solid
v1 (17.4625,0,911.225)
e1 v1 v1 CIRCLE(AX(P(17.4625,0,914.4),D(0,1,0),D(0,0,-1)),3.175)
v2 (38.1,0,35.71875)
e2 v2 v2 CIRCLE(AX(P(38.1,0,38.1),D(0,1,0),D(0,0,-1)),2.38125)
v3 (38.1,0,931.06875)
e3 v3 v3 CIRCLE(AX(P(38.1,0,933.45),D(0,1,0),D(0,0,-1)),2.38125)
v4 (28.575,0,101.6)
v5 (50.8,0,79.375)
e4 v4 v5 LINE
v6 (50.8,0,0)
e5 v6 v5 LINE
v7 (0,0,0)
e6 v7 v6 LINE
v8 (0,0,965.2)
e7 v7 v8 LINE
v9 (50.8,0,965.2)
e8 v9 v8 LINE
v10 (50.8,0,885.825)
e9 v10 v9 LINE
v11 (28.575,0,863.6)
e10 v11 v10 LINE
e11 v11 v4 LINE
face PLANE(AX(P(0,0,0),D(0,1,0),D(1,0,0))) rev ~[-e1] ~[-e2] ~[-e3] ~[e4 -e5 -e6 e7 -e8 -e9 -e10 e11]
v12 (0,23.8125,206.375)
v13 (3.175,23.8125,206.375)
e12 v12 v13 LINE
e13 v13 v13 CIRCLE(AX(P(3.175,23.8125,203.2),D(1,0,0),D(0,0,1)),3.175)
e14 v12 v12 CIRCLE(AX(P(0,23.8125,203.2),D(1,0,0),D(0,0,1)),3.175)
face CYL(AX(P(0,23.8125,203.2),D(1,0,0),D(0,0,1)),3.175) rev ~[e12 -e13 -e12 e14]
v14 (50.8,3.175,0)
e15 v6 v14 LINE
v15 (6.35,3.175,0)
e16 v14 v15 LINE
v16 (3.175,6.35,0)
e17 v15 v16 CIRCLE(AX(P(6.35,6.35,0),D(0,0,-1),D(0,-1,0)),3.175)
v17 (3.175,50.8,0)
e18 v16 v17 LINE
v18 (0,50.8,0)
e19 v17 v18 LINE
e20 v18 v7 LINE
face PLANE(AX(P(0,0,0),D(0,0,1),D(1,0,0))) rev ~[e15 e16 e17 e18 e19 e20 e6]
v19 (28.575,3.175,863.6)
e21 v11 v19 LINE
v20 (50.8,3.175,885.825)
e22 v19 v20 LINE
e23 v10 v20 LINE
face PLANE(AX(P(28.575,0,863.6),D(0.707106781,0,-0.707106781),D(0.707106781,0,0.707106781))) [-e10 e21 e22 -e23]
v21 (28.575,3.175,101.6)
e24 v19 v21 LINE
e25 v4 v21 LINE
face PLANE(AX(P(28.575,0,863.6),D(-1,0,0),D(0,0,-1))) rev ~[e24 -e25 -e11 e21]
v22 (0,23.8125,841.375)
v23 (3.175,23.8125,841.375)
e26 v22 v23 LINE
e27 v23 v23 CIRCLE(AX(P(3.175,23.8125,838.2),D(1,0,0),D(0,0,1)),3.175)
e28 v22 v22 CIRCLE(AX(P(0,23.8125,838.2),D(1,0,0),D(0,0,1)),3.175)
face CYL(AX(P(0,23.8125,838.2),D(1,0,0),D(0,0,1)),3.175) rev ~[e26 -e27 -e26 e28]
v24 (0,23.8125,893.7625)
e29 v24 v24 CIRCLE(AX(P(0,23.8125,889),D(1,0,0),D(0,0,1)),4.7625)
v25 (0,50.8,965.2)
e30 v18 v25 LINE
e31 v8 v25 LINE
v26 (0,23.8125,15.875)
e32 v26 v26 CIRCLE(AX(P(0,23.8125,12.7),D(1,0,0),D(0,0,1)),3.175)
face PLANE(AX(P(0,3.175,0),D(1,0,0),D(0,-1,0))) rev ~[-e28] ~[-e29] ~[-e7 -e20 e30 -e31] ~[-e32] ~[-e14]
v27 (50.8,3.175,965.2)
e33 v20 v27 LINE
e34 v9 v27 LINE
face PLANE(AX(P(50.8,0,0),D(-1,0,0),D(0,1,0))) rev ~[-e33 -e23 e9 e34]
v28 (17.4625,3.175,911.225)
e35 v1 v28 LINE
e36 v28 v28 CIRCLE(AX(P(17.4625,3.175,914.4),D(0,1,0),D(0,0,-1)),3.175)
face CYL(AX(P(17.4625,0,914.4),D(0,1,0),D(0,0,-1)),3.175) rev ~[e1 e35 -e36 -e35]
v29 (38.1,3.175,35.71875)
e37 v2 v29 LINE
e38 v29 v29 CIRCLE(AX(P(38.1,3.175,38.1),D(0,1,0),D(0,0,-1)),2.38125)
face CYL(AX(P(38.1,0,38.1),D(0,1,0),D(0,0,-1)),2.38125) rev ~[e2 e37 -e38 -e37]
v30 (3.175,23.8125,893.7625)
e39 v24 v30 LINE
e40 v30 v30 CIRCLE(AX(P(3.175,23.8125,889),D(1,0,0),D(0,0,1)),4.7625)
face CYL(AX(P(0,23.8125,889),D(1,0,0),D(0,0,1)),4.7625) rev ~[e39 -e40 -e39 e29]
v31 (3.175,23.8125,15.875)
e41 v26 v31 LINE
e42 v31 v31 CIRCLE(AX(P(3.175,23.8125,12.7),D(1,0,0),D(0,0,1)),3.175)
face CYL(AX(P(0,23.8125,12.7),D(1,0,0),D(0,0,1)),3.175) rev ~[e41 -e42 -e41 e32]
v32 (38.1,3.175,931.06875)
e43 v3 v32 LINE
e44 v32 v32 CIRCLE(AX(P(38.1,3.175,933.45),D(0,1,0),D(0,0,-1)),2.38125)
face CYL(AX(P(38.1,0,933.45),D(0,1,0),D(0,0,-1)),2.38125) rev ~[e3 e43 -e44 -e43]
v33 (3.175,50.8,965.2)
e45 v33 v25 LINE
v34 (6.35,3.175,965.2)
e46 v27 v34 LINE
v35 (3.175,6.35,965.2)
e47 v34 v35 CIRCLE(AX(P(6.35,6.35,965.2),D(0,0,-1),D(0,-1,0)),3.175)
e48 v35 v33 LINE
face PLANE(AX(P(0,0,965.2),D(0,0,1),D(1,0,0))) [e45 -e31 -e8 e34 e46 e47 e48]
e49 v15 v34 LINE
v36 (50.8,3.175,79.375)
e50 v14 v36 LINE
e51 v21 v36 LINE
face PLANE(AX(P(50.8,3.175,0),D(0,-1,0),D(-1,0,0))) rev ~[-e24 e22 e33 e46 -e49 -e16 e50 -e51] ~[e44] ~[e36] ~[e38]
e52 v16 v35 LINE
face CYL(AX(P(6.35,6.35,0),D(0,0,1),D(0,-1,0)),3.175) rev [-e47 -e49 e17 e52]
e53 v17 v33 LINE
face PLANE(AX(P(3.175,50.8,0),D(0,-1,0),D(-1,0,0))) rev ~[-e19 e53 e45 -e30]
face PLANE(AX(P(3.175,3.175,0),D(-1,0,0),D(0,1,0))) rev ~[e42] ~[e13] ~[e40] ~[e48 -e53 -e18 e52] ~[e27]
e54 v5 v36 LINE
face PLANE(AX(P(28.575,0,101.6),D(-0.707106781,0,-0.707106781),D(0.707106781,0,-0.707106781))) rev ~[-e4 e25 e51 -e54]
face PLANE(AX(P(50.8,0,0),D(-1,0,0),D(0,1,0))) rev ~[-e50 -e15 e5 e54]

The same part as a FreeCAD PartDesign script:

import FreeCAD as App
import Part
import Sketcher
from FreeCAD import Vector
Q = App.Units.Quantity


def edges_at(feature, points):
    """Names of the edges that pass closest to the given points."""
    edges = feature.Shape.Edges
    near = lambda p: min(range(len(edges)), key=lambda i: edges[i].distToShape(Part.Vertex(*p))[0])
    return sorted({f"Edge{near(p) + 1}" for p in points})

doc = App.newDocument("Part")
body = doc.addObject("PartDesign::Body", "Body")

# Sketch on XY plane
sketch1 = body.newObject("Sketcher::SketchObject", "Sketch")
sketch1.AttachmentSupport = (doc.getObject("XY_Plane"), [""])
sketch1.MapMode = "FlatFace"
sketch1.addGeometry([
    Part.LineSegment(Vector(0, 0, 0), Vector(50.8, 0, 0)),  # 0
    Part.LineSegment(Vector(50.8, 0, 0), Vector(50.8, 3.2, 0)),  # 1
    Part.LineSegment(Vector(50.8, 3.2, 0), Vector(3.2, 3.2, 0)),  # 2
    Part.LineSegment(Vector(3.2, 3.2, 0), Vector(3.2, 50.8, 0)),  # 3
    Part.LineSegment(Vector(3.2, 50.8, 0), Vector(0, 50.8, 0)),  # 4
    Part.LineSegment(Vector(0, 50.8, 0), Vector(0, 0, 0)),  # 5
], False)
sketch1.addConstraint([
    Sketcher.Constraint("Coincident", 0, 2, 1, 1),
    Sketcher.Constraint("Coincident", 1, 2, 2, 1),
    Sketcher.Constraint("Coincident", 2, 2, 3, 1),
    Sketcher.Constraint("Coincident", 3, 2, 4, 1),
    Sketcher.Constraint("Coincident", 4, 2, 5, 1),
    Sketcher.Constraint("Coincident", 5, 2, 0, 1),
    Sketcher.Constraint("Horizontal", 0),
    Sketcher.Constraint("Vertical", 1),
    Sketcher.Constraint("Horizontal", 2),
    Sketcher.Constraint("Vertical", 3),
    Sketcher.Constraint("Horizontal", 4),
    Sketcher.Constraint("Vertical", 5),
    Sketcher.Constraint("Coincident", 5, 2, -1, 1),
    Sketcher.Constraint("Equal", 4, 1),
    Sketcher.Constraint("Equal", 2, 3),
    Sketcher.Constraint("DistanceX", 0, 1, 0, 2, Q("2 in")),
    Sketcher.Constraint("DistanceX", 4, 2, 4, 1, Q("0.125 in")),
])
pad1 = body.newObject("PartDesign::Pad", "Pad")
pad1.Profile = sketch1
pad1.Length = Q("38 in")

# Sketch on YZ plane
sketch2 = body.newObject("Sketcher::SketchObject", "Sketch001")
sketch2.AttachmentSupport = (doc.getObject("YZ_Plane"), [""])
sketch2.MapMode = "FlatFace"
sketch2.addGeometry([
    Part.Circle(Vector(23.8, 12.7, 0), Vector(0, 0, 1), 3.2),
    Part.Circle(Vector(23.8, 203.2, 0), Vector(0, 0, 1), 3.2),
], False)
sketch2.addConstraint([
    Sketcher.Constraint("Equal", 0, 1),
    Sketcher.Constraint("Vertical", 0, 3, 1, 3),
    Sketcher.Constraint("Diameter", 0, Q("0.25 in")),
    Sketcher.Constraint("DistanceY", -1, 1, 1, 3, Q("8 in")),
    Sketcher.Constraint("DistanceY", -1, 1, 0, 3, Q("0.5 in")),
    Sketcher.Constraint("DistanceX", -1, 1, 0, 3, Q("0.9375 in")),
])
doc.recompute()
hole = body.newObject("PartDesign::Hole", "Hole")
hole.Profile = sketch2
hole.ThreadType = "None"
hole.Diameter = Q("0.25 in")
hole.DepthType = "ThroughAll"
hole.Reversed = True

# Sketch on YZ plane
sketch3 = body.newObject("Sketcher::SketchObject", "Sketch002")
sketch3.AttachmentSupport = (doc.getObject("YZ_Plane"), [""])
sketch3.MapMode = "FlatFace"
sketch3.addGeometry(Part.Circle(Vector(23.8, 889, 0), Vector(0, 0, 1), 4.8), False)
sketch3.addConstraint([
    Sketcher.Constraint("Diameter", 0, Q("0.375 in")),
    Sketcher.Constraint("DistanceY", -1, 1, 0, 3, Q("35 in")),
    Sketcher.Constraint("DistanceX", -1, 1, 0, 3, Q("0.9375 in")),
])
doc.recompute()
hole2 = body.newObject("PartDesign::Hole", "Hole001")
hole2.Profile = sketch3
hole2.ThreadType = "None"
hole2.Diameter = Q("0.375 in")
hole2.DepthType = "ThroughAll"
hole2.Reversed = True

# Sketch on XZ plane
sketch4 = body.newObject("Sketcher::SketchObject", "Sketch003")
sketch4.AttachmentSupport = (doc.getObject("XZ_Plane"), [""])
sketch4.MapMode = "FlatFace"
sketch4.addGeometry(Part.Circle(Vector(17.5, 914.4, 0), Vector(0, 0, 1), 3.2), False)
sketch4.addConstraint([
    Sketcher.Constraint("Diameter", 0, Q("0.25 in")),
    Sketcher.Constraint("DistanceY", -1, 1, 0, 3, Q("36 in")),
    Sketcher.Constraint("DistanceX", -1, 1, 0, 3, Q("0.6875 in")),
])
doc.recompute()
hole3 = body.newObject("PartDesign::Hole", "Hole002")
hole3.Profile = sketch4
hole3.ThreadType = "None"
hole3.Diameter = Q("0.25 in")
hole3.DepthType = "ThroughAll"
doc.recompute()

fillet = body.newObject("PartDesign::Fillet", "Fillet")
fillet.Base = (hole3, edges_at(hole3, [(3.175, 3.175, 482.6)]))
fillet.Radius = Q("0.125 in")

# Sketch on XZ plane
sketch5 = body.newObject("Sketcher::SketchObject", "Sketch004")
sketch5.AttachmentSupport = (doc.getObject("XZ_Plane"), [""])
sketch5.MapMode = "FlatFace"
sketch5.addGeometry([
    Part.Circle(Vector(38.1, 933.5, 0), Vector(0, 0, 1), 2.4),
    Part.Circle(Vector(38.1, 38.1, 0), Vector(0, 0, 1), 2.4),
], False)
sketch5.addConstraint([
    Sketcher.Constraint("Equal", 0, 1),
    Sketcher.Constraint("Vertical", 0, 3, 1, 3),
    Sketcher.Constraint("Diameter", 0, Q("0.1875 in")),
    Sketcher.Constraint("DistanceX", -1, 1, 0, 3, Q("1.5 in")),
    Sketcher.Constraint("DistanceY", -1, 1, 1, 3, Q("1.5 in")),
    Sketcher.Constraint("DistanceY", -1, 1, 0, 3, Q("36.75 in")),
])
doc.recompute()
hole4 = body.newObject("PartDesign::Hole", "Hole003")
hole4.Profile = sketch5
hole4.ThreadType = "None"
hole4.Diameter = Q("0.1875 in")
hole4.DepthType = "ThroughAll"

# Sketch on XZ plane
sketch6 = body.newObject("Sketcher::SketchObject", "Sketch005")
sketch6.AttachmentSupport = (doc.getObject("XZ_Plane"), [""])
sketch6.MapMode = "FlatFace"
sketch6.addGeometry([
    Part.LineSegment(Vector(29, 102, 0), Vector(51, 79, 0)),
    Part.LineSegment(Vector(51, 79, 0), Vector(51, 886, 0)),
    Part.LineSegment(Vector(51, 886, 0), Vector(29, 864, 0)),
    Part.LineSegment(Vector(29, 864, 0), Vector(29, 102, 0)),
], False)
sketch6.addConstraint([
    Sketcher.Constraint("Coincident", 0, 2, 1, 1),
    Sketcher.Constraint("Coincident", 1, 2, 2, 1),
    Sketcher.Constraint("Coincident", 2, 2, 3, 1),
    Sketcher.Constraint("Coincident", 3, 2, 0, 1),
    Sketcher.Constraint("Vertical", 1),
    Sketcher.Constraint("Vertical", 3),
    Sketcher.Constraint("Perpendicular", 0, 2),
    Sketcher.Constraint("Equal", 0, 2),
    Sketcher.Constraint("DistanceY", -1, 1, 3, 2, Q("4 in")),
    Sketcher.Constraint("DistanceY", 3, 2, 3, 1, Q("30 in")),
    Sketcher.Constraint("DistanceX", -1, 1, 0, 2, Q("2 in")),
    Sketcher.Constraint("DistanceX", 2, 2, 1, 2, Q("0.875 in")),
])
pocket1 = body.newObject("PartDesign::Pocket", "Pocket")
pocket1.Profile = sketch6
pocket1.Length = Q("1 in")

# Sketch on YZ plane
sketch7 = body.newObject("Sketcher::SketchObject", "Sketch006")
sketch7.AttachmentSupport = (doc.getObject("YZ_Plane"), [""])
sketch7.MapMode = "FlatFace"
sketch7.addGeometry(Part.Circle(Vector(23.8, 838.2, 0), Vector(0, 0, 1), 3.2), False)
sketch7.addConstraint([
    Sketcher.Constraint("Diameter", 0, Q("0.25 in")),
    Sketcher.Constraint("DistanceY", -1, 1, 0, 3, Q("33 in")),
    Sketcher.Constraint("DistanceX", -1, 1, 0, 3, Q("0.9375 in")),
])
doc.recompute()
hole5 = body.newObject("PartDesign::Hole", "Hole004")
hole5.Profile = sketch7
hole5.ThreadType = "None"
hole5.Diameter = Q("0.25 in")
hole5.DepthType = "ThroughAll"
hole5.Reversed = True

doc.recompute()
